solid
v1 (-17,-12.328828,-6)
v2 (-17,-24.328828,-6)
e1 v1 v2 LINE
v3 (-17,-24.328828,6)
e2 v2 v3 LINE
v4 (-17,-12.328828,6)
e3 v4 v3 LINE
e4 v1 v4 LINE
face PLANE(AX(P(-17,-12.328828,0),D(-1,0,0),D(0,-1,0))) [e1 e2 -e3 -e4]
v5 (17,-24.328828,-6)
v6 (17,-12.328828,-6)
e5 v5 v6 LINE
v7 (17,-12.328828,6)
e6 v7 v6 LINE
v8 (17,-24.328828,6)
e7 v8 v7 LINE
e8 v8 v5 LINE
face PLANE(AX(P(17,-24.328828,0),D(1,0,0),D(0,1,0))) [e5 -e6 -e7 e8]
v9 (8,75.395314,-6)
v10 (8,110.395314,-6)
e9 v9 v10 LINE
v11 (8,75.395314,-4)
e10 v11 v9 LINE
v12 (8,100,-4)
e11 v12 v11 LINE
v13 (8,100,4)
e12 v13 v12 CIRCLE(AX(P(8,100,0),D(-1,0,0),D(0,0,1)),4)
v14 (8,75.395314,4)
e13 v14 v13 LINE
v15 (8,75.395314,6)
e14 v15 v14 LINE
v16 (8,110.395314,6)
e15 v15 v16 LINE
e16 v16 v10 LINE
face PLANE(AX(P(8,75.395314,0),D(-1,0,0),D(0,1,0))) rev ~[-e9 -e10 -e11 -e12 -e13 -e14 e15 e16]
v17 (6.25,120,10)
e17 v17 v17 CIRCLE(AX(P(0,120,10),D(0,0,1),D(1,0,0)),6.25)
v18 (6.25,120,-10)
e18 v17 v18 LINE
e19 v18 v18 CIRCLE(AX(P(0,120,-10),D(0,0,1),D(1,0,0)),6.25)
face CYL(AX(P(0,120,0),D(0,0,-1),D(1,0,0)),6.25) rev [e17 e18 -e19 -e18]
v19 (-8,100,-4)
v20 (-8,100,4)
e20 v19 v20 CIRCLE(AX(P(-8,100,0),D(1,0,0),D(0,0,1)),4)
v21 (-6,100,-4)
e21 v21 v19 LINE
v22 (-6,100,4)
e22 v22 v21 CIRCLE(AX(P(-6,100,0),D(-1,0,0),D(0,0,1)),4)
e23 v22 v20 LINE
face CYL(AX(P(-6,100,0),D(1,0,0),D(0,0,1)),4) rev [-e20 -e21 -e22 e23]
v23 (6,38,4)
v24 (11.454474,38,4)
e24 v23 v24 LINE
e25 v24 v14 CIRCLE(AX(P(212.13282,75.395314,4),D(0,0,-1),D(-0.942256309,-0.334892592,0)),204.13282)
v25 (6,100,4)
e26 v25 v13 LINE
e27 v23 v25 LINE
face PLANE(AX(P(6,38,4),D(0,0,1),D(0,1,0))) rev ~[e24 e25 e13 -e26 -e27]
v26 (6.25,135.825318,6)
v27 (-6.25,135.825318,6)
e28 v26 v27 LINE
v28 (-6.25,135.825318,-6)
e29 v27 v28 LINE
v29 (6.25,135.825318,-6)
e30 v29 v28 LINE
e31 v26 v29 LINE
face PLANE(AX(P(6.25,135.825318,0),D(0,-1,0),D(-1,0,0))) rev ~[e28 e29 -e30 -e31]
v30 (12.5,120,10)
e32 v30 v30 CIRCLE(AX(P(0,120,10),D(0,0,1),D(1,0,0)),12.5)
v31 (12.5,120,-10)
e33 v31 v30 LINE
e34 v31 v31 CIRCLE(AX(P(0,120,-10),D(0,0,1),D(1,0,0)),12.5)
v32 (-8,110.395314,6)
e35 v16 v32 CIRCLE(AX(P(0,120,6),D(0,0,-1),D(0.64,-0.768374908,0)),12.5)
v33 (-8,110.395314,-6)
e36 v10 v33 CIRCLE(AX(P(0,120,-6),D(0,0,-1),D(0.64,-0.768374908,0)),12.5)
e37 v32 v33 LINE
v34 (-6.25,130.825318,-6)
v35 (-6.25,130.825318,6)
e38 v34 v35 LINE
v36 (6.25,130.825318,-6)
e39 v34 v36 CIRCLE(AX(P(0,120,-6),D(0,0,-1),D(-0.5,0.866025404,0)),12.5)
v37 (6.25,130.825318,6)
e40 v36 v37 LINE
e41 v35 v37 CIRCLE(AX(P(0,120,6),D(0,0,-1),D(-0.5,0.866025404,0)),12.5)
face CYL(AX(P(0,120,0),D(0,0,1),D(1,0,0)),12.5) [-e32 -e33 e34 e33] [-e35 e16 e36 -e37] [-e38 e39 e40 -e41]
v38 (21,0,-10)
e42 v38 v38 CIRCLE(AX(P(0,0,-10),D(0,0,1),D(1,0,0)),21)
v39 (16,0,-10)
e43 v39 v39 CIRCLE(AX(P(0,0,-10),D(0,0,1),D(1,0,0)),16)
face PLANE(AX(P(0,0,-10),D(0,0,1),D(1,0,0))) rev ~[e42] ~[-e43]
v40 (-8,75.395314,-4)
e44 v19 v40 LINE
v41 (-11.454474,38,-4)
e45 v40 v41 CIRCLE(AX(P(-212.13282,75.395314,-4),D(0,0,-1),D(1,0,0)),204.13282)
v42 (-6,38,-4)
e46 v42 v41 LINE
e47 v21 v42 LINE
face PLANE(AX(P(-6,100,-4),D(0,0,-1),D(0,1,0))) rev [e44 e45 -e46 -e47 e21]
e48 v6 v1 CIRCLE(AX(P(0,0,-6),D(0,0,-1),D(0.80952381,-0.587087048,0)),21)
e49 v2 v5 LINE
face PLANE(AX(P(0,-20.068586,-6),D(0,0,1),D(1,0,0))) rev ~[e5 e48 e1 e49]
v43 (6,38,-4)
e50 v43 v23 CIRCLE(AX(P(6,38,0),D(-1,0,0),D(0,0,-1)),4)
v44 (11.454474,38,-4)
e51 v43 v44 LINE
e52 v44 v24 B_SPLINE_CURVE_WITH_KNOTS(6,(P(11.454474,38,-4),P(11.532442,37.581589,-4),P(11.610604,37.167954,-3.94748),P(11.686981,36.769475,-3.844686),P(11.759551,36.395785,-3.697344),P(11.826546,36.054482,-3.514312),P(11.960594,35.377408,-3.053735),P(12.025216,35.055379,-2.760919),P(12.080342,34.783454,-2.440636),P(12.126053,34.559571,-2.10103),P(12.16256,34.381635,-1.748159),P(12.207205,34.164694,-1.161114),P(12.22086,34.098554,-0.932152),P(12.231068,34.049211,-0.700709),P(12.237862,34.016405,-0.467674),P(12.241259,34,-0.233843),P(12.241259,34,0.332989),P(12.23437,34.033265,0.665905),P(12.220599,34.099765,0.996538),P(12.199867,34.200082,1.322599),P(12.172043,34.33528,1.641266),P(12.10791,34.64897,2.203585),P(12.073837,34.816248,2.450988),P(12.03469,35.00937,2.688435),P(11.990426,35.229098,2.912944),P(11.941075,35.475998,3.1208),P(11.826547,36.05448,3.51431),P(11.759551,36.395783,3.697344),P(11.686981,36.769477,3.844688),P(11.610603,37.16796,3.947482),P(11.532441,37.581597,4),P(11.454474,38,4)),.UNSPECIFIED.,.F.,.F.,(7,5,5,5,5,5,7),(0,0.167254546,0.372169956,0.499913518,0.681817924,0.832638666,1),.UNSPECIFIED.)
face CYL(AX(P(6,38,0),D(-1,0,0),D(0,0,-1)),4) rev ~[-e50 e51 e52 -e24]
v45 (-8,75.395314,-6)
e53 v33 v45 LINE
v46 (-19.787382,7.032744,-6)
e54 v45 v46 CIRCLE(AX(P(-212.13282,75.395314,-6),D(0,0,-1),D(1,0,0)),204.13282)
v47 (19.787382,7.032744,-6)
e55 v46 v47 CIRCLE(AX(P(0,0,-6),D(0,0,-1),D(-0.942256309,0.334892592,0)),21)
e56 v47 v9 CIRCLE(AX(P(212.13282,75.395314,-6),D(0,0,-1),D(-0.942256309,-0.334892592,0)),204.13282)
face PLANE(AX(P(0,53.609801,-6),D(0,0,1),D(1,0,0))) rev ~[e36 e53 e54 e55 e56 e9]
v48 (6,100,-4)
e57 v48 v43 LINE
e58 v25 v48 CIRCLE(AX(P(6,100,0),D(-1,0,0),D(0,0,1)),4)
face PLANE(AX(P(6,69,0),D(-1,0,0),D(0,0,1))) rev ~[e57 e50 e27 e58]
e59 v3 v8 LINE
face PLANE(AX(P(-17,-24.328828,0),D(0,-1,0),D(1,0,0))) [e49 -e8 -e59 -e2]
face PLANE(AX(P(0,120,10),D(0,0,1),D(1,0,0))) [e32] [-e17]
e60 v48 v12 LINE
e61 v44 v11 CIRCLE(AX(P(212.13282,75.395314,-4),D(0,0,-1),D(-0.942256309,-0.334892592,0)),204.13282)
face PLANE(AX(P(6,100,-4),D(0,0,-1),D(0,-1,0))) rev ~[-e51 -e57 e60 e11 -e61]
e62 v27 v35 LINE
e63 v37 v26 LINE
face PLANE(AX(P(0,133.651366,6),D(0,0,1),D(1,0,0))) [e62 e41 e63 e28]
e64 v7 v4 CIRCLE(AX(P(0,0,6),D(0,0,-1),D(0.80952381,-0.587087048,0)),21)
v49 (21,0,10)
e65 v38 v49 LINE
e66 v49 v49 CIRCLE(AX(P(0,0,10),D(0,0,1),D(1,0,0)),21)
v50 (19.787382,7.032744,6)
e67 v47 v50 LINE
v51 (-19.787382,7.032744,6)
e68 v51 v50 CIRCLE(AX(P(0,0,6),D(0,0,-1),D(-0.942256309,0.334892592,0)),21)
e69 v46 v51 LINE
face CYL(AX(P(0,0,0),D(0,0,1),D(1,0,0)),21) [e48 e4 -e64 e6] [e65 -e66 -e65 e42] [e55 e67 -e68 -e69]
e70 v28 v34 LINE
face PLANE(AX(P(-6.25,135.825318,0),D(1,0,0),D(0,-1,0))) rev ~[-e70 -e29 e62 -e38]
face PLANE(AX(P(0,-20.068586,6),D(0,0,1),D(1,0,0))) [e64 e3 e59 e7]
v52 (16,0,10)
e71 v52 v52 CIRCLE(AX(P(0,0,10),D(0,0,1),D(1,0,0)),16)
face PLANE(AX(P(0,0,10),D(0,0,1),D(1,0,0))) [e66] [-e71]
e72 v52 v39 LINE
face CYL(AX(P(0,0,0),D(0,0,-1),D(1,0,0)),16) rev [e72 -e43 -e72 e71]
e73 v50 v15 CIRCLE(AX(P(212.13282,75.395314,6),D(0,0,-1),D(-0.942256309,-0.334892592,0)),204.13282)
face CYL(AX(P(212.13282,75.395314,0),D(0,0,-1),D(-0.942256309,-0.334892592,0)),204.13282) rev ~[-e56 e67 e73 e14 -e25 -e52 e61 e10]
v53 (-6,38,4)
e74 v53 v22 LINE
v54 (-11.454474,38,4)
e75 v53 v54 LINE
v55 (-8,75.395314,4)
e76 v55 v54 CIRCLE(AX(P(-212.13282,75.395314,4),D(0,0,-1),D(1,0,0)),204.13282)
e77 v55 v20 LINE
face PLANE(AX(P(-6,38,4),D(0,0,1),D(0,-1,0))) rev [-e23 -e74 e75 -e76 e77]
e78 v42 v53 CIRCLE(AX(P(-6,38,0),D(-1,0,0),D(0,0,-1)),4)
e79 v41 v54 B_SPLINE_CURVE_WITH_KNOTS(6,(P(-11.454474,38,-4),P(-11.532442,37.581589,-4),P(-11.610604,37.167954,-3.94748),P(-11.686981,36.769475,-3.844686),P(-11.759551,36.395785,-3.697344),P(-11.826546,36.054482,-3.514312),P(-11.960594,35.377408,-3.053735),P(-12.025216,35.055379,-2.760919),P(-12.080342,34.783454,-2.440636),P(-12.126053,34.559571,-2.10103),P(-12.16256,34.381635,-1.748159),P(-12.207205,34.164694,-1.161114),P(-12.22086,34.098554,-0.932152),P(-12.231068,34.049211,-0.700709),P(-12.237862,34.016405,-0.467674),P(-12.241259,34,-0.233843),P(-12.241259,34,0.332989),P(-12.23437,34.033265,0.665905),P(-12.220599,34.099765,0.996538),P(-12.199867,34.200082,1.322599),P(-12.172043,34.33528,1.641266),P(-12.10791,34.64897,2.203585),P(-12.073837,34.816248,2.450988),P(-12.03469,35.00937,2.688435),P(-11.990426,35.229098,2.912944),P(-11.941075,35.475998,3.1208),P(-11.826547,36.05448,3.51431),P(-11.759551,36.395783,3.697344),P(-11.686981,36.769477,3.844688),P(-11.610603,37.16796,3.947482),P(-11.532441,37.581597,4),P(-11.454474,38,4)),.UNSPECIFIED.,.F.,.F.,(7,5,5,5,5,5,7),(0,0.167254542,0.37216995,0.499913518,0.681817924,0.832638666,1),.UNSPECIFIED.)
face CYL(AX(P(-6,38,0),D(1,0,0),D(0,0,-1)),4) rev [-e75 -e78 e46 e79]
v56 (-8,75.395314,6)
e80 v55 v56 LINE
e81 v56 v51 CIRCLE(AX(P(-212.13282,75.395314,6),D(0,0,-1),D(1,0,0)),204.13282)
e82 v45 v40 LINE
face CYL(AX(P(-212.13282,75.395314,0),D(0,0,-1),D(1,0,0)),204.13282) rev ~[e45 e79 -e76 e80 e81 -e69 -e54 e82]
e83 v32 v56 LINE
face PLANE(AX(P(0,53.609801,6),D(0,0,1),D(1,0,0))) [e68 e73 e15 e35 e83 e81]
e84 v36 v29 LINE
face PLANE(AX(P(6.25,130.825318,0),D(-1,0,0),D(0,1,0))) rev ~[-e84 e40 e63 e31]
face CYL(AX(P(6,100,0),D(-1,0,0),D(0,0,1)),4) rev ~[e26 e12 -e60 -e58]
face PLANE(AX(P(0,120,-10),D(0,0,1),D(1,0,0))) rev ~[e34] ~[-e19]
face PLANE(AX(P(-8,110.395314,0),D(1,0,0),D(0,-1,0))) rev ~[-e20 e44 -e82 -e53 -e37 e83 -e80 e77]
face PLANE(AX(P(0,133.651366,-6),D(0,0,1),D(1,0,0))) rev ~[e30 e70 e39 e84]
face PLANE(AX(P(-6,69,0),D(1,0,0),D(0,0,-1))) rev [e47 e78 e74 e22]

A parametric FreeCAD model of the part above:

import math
import FreeCAD as App
import Part
import Sketcher

doc = App.newDocument("Part")
body = doc.addObject("PartDesign::Body", "Body")

sketch1 = body.newObject("Sketcher::SketchObject", "Sketch")
sketch1.AttachmentSupport = (doc.getObject("XY_Plane"), [""])
sketch1.MapMode = "FlatFace"
sketch1.addGeometry([
    Part.Circle(App.Vector(0, 0, 0), App.Vector(0, 0, 1), 21),
    Part.Circle(App.Vector(0, 0, 0), App.Vector(0, 0, 1), 16),
], False)
sketch1.addConstraint([
    Sketcher.Constraint("Coincident", 0, 3, -1, 1),
    Sketcher.Constraint("Coincident", 1, 3, -1, 1),
    Sketcher.Constraint("Diameter", 0, 42.0),
    Sketcher.Constraint("Diameter", 1, 32.0),
])
pad1 = body.newObject("PartDesign::Pad", "Pad")
pad1.Profile = sketch1
pad1.Length = 20
pad1.Midplane = True
body2 = doc.addObject("PartDesign::Body", "Body001")

sketch2 = body2.newObject("Sketcher::SketchObject", "Sketch001")
sketch2.AttachmentSupport = (doc.getObject("XY_Plane001"), [""])
sketch2.MapMode = "FlatFace"
sketch2.addGeometry([
    Part.Circle(App.Vector(0, 120, 0), App.Vector(0, 0, 1), 12),
    Part.Circle(App.Vector(0, 120, 0), App.Vector(0, 0, 1), 6),
], False)
sketch2.addConstraint([
    Sketcher.Constraint("Coincident", 1, 3, 0, 3),
    Sketcher.Constraint("PointOnObject", 0, 3, -2),
    Sketcher.Constraint("Diameter", 0, 25.0),
    Sketcher.Constraint("Diameter", 1, 12.5),
    Sketcher.Constraint("DistanceY", -1, 1, 0, 3, 120.0),
])
pad2 = body2.newObject("PartDesign::Pad", "Pad001")
pad2.Profile = sketch2
pad2.Length = 20
pad2.Midplane = True
body.AllowCompound = True
doc.recompute()

boolean = body.newObject("PartDesign::Boolean", "Boolean")
boolean.Type = "Fuse"
boolean.addObjects([body2])

sketch3 = body.newObject("Sketcher::SketchObject", "Sketch002")
sketch3.AttachmentSupport = (doc.getObject("XY_Plane"), [""])
sketch3.MapMode = "FlatFace"
sketch3.addGeometry([
    Part.LineSegment(App.Vector(-8, 110, 0), App.Vector(-8, 75, 0)),
    Part.ArcOfCircle(Part.Circle(App.Vector(-212, 75, 0), App.Vector(0, 0, 1), 204), math.radians(-19.57), math.radians(0)),
    Part.ArcOfCircle(Part.Circle(App.Vector(0, 0, 0), App.Vector(0, 0, 1), 21), math.radians(20), math.radians(160)),
    Part.ArcOfCircle(Part.Circle(App.Vector(212, 75, 0), App.Vector(0, 0, 1), 204), math.radians(180), math.radians(199.57)),
    Part.LineSegment(App.Vector(8, 75, 0), App.Vector(8, 110, 0)),
    Part.ArcOfCircle(Part.Circle(App.Vector(0, 120, 0), App.Vector(0, 0, 1), 12), math.radians(-130), math.radians(-50)),
    Part.LineSegment(App.Vector(-6, 136, 0), App.Vector(-6, 131, 0)),
    Part.ArcOfCircle(Part.Circle(App.Vector(0, 120, 0), App.Vector(0, 0, 1), 12), math.radians(60), math.radians(120)),
    Part.LineSegment(App.Vector(6, 131, 0), App.Vector(6, 136, 0)),
    Part.LineSegment(App.Vector(6, 136, 0), App.Vector(-6, 136, 0)),
    Part.ArcOfCircle(Part.Circle(App.Vector(0, 0, 0), App.Vector(0, 0, 1), 21), math.radians(-144), math.radians(-36)),
    Part.LineSegment(App.Vector(-17, -12, 0), App.Vector(-17, -24, 0)),
    Part.LineSegment(App.Vector(-17, -24, 0), App.Vector(17, -24, 0)),
    Part.LineSegment(App.Vector(17, -24, 0), App.Vector(17, -12, 0)),
], False)
sketch3.addConstraint([
    Sketcher.Constraint("Tangent", 0, 2, 1, 2),
    Sketcher.Constraint("Tangent", 1, 1, 2, 2),
    Sketcher.Constraint("Tangent", 2, 1, 3, 2),
    Sketcher.Constraint("Tangent", 3, 1, 4, 1),
    Sketcher.Constraint("Coincident", 4, 2, 5, 2),
    Sketcher.Constraint("Coincident", 5, 1, 0, 1),
    Sketcher.Constraint("Coincident", 6, 2, 7, 2),
    Sketcher.Constraint("Coincident", 7, 1, 8, 1),
    Sketcher.Constraint("Coincident", 8, 2, 9, 1),
    Sketcher.Constraint("Coincident", 9, 2, 6, 1),
    Sketcher.Constraint("Coincident", 10, 1, 11, 1),
    Sketcher.Constraint("Coincident", 11, 2, 12, 1),
    Sketcher.Constraint("Coincident", 12, 2, 13, 1),
    Sketcher.Constraint("Coincident", 13, 2, 10, 2),
    Sketcher.Constraint("Vertical", 0),
    Sketcher.Constraint("Vertical", 4),
    Sketcher.Constraint("Vertical", 6),
    Sketcher.Constraint("Vertical", 8),
    Sketcher.Constraint("Horizontal", 9),
    Sketcher.Constraint("Vertical", 11),
    Sketcher.Constraint("Horizontal", 12),
    Sketcher.Constraint("Vertical", 13),
    Sketcher.Constraint("Coincident", 2, 3, -1, 1),
    Sketcher.Constraint("Coincident", 10, 3, -1, 1),
    Sketcher.Constraint("Coincident", 7, 3, 5, 3),
    Sketcher.Constraint("Equal", 1, 3),
    Sketcher.Constraint("Equal", 5, 7),
    Sketcher.Constraint("Equal", 2, 10),
    Sketcher.Constraint("Symmetric", 4, 2, 5, 1, -2),
    Sketcher.Constraint("Horizontal", 6, 2, 7, 1),
    Sketcher.Constraint("Horizontal", 10, 1, 13, 2),
    Sketcher.Constraint("Radius", 2, 21.0),
    Sketcher.Constraint("Radius", 5, 12.5),
    Sketcher.Constraint("DistanceX", 12, 1, 12, 2, 34.0),
    Sketcher.Constraint("DistanceY", 0, 2, 0, 1, 35.0),
    Sketcher.Constraint("DistanceY", 6, 2, 6, 1, 5.0),
    Sketcher.Constraint("DistanceY", 11, 2, 11, 1, 12.0),
    Sketcher.Constraint("DistanceX", 9, 2, 9, 1, 12.5),
    Sketcher.Constraint("DistanceY", -1, 1, 5, 3, 120.0),
    Sketcher.Constraint("DistanceX", 0, 2, -1, 1, 8.0),
])
pad3 = body.newObject("PartDesign::Pad", "Pad002")
pad3.Profile = sketch3
pad3.Length = 12
pad3.Midplane = True

sketch4 = body.newObject("Sketcher::SketchObject", "Sketch003")
sketch4.AttachmentSupport = (doc.getObject("YZ_Plane"), [""])
sketch4.MapMode = "FlatFace"
sketch4.AttachmentOffset = App.Placement(App.Vector(0, 0, 6), App.Rotation())
sketch4.addGeometry([
    Part.LineSegment(App.Vector(38, -4, 0), App.Vector(100, -4, 0)),
    Part.ArcOfCircle(Part.Circle(App.Vector(100, 0, 0), App.Vector(0, 0, 1), 4), math.radians(-90), math.radians(90)),
    Part.LineSegment(App.Vector(100, 4, 0), App.Vector(38, 4, 0)),
    Part.ArcOfCircle(Part.Circle(App.Vector(38, 0, 0), App.Vector(0, 0, 1), 4), math.radians(90), math.radians(270)),
], False)
sketch4.addConstraint([
    Sketcher.Constraint("Tangent", 0, 2, 1, 1),
    Sketcher.Constraint("Tangent", 1, 2, 2, 1),
    Sketcher.Constraint("Tangent", 2, 2, 3, 1),
    Sketcher.Constraint("Tangent", 3, 2, 0, 1),
    Sketcher.Constraint("Horizontal", 0),
    Sketcher.Constraint("Horizontal", 2),
    Sketcher.Constraint("PointOnObject", 1, 3, -1),
    Sketcher.Constraint("Radius", 1, 4.0),
    Sketcher.Constraint("DistanceX", 0, 1, 0, 2, 62.0),
    Sketcher.Constraint("DistanceX", -1, 1, 1, 3, 100.0),
])
pocket1 = body.newObject("PartDesign::Pocket", "Pocket")
pocket1.Profile = sketch4
pocket1.Length = 12
pocket1.Reversed = True
doc.recompute()

mirrored = body.newObject("PartDesign::Mirrored", "Mirrored")
mirrored.Originals = [pocket1]
mirrored.MirrorPlane = (doc.getObject("YZ_Plane"), [""])
body.Tip = mirrored

doc.recompute()
